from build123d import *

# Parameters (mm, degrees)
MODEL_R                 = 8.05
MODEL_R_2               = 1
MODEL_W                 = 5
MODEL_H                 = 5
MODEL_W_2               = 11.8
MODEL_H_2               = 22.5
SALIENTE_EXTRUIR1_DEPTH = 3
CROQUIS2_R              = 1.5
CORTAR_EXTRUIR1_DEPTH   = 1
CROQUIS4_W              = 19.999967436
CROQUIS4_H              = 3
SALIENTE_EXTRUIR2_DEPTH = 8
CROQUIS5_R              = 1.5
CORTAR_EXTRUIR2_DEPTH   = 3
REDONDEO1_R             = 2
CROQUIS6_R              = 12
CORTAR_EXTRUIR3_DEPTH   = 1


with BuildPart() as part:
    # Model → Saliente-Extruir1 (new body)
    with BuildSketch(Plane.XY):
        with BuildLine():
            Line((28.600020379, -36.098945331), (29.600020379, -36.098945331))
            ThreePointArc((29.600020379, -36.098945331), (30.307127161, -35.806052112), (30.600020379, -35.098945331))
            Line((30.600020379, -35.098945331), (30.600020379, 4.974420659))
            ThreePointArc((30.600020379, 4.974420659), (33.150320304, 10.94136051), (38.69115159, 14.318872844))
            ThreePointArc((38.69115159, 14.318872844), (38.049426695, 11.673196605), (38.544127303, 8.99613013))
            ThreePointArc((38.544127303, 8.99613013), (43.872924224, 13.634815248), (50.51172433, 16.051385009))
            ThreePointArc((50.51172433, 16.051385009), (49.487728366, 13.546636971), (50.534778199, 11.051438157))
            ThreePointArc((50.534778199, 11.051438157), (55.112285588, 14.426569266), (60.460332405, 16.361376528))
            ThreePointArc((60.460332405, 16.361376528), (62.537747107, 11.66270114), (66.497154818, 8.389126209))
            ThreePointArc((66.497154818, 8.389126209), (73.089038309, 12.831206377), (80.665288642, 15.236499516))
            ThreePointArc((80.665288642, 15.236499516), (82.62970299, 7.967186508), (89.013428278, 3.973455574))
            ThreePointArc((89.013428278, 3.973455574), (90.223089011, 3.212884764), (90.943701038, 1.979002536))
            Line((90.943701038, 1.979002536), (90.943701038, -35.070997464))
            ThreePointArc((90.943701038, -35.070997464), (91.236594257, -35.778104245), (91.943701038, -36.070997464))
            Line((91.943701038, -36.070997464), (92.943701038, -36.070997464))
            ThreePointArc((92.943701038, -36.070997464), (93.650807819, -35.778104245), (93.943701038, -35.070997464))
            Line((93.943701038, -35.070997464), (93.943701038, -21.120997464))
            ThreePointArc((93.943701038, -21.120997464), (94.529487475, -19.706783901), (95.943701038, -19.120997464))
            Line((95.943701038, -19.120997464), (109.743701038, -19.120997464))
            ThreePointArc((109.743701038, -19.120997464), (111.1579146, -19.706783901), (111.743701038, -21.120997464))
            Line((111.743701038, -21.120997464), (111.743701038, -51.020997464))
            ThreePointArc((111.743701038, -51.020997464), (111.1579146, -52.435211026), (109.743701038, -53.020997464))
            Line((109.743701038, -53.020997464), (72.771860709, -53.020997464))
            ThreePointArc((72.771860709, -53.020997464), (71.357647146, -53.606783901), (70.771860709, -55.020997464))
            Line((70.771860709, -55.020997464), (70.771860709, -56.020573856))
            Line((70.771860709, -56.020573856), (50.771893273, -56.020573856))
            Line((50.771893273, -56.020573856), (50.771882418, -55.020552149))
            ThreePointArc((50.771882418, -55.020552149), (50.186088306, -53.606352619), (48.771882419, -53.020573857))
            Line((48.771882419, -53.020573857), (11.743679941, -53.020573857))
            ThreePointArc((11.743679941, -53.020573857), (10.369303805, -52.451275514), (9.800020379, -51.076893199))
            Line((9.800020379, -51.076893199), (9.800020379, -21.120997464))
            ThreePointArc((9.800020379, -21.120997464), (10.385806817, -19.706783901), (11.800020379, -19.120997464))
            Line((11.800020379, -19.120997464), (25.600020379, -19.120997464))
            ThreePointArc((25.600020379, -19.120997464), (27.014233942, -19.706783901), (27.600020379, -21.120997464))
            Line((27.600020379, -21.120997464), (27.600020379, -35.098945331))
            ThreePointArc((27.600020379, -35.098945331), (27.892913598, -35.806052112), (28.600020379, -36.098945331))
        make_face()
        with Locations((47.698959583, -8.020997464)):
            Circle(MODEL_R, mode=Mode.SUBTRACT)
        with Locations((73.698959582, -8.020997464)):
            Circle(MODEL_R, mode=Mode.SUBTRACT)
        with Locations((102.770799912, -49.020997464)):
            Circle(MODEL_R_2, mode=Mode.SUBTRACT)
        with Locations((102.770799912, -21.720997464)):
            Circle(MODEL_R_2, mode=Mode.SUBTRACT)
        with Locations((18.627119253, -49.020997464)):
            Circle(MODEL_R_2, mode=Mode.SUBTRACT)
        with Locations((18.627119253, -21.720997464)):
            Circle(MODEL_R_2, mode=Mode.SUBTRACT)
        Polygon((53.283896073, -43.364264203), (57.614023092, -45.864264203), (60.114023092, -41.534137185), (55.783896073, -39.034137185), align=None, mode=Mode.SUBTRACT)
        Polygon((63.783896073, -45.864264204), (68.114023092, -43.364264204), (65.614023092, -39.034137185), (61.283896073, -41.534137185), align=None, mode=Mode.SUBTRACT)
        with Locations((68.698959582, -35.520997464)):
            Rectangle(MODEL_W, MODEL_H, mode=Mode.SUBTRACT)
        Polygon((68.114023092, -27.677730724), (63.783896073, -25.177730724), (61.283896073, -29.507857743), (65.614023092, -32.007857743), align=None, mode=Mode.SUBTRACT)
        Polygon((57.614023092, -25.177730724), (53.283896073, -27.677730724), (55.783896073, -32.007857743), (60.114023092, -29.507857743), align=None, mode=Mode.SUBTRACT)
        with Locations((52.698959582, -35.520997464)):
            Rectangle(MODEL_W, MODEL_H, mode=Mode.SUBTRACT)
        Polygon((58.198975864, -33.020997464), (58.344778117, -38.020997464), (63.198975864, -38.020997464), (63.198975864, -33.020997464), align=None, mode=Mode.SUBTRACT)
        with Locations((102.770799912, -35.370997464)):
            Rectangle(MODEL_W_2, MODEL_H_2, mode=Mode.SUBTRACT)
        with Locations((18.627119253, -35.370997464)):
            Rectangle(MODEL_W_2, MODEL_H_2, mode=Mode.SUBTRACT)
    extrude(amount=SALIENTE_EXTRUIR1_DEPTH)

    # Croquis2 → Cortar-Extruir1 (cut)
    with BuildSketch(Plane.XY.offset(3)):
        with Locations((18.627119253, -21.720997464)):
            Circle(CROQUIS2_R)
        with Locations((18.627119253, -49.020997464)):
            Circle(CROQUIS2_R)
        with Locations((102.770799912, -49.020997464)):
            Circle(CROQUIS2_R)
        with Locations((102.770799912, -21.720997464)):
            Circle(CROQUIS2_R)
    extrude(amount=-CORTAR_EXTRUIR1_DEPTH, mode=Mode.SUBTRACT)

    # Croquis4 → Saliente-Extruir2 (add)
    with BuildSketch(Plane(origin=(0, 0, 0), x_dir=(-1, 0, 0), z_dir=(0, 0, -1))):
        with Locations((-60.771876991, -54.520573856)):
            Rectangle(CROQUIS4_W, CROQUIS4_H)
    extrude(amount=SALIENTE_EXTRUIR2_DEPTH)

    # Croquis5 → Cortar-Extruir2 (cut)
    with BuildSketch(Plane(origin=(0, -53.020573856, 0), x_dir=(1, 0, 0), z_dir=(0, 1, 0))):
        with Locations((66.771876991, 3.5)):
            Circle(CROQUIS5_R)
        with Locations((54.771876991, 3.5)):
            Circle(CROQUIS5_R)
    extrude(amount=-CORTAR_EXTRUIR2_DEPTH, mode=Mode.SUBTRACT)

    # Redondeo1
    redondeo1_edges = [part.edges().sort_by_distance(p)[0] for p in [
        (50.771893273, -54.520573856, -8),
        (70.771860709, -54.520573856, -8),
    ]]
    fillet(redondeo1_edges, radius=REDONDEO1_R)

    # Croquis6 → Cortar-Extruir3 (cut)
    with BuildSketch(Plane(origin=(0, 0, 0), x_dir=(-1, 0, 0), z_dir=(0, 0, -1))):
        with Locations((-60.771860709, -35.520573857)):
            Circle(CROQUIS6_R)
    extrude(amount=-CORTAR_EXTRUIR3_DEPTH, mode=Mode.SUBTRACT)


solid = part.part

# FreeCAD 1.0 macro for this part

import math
import FreeCAD as App
import Part
import Sketcher

V = App.Vector
Q = App.Units.Quantity


def edges_at(feature, points):
    """Names of the edges that pass closest to the given points."""
    edges = feature.Shape.Edges
    near = lambda p: min(range(len(edges)), key=lambda i: edges[i].distToShape(Part.Vertex(*p))[0])
    return sorted({f"Edge{near(p) + 1}" for p in points})


def add_polygon(sketch, points):
    """Adds a closed chain of lines whose ends are joined by coincident constraints."""
    first, n = sketch.GeometryCount, len(points)
    for a, b in zip(points, points[1:] + points[:1]):
        sketch.addGeometry(Part.LineSegment(App.Vector(*a, 0), App.Vector(*b, 0)), False)
    for i in range(n):
        sketch.addConstraint(Sketcher.Constraint("Coincident", first + i, 2, first + (i + 1) % n, 1))

doc = App.newDocument("Part")
body = doc.addObject("PartDesign::Body", "Body")

# Sketch on XY plane
sketch1 = body.newObject("Sketcher::SketchObject", "Sketch")
sketch1.AttachmentSupport = (doc.getObject("XY_Plane"), [""])
sketch1.MapMode = "FlatFace"
sketch1.addGeometry(Part.LineSegment(V(29.60002, -36.098945, 0), V(28.60002, -36.098945, 0)), False)  # 0
sketch1.addGeometry(Part.ArcOfCircle(Part.Circle(V(28.60002, -35.098945, 0), V(0, 0, 1), 1), math.radians(-180), math.radians(-90)), False)  # 1
sketch1.addGeometry(Part.LineSegment(V(27.60002, -35.098945, 0), V(27.60002, -21.120997, 0)), False)  # 2
sketch1.addGeometry(Part.ArcOfCircle(Part.Circle(V(25.60002, -21.120997, 0), V(0, 0, 1), 2), math.radians(0), math.radians(90)), False)  # 3
sketch1.addGeometry(Part.LineSegment(V(25.60002, -19.120997, 0), V(11.80002, -19.120997, 0)), False)  # 4
sketch1.addGeometry(Part.ArcOfCircle(Part.Circle(V(11.80002, -21.120997, 0), V(0, 0, 1), 2), math.radians(90), math.radians(180)), False)  # 5
sketch1.addGeometry(Part.LineSegment(V(9.80002, -21.120997, 0), V(9.80002, -51.076893, 0)), False)  # 6
sketch1.addGeometry(Part.ArcOfCircle(Part.Circle(V(11.743701, -51.076893, 0), V(0, 0, 1), 1.943681), math.radians(-180), math.radians(-90.000622)), False)  # 7
sketch1.addGeometry(Part.LineSegment(V(11.74368, -53.020574, 0), V(48.771882, -53.020574, 0)), False)  # 8
sketch1.addGeometry(Part.ArcOfCircle(Part.Circle(V(48.771882, -55.020574, 0), V(0, 0, 1), 2), math.radians(0.000622), math.radians(90)), False)  # 9
sketch1.addGeometry(Part.LineSegment(V(50.771882, -55.020552, 0), V(50.771893, -56.020574, 0)), False)  # 10
sketch1.addGeometry(Part.LineSegment(V(50.771893, -56.020574, 0), V(70.771861, -56.020574, 0)), False)  # 11
sketch1.addGeometry(Part.LineSegment(V(70.771861, -56.020574, 0), V(70.771861, -55.020997, 0)), False)  # 12
sketch1.addGeometry(Part.ArcOfCircle(Part.Circle(V(72.771861, -55.020997, 0), V(0, 0, 1), 2), math.radians(90), math.radians(180)), False)  # 13
sketch1.addGeometry(Part.LineSegment(V(72.771861, -53.020997, 0), V(109.743701, -53.020997, 0)), False)  # 14
sketch1.addGeometry(Part.ArcOfCircle(Part.Circle(V(109.743701, -51.020997, 0), V(0, 0, 1), 2), math.radians(-90), math.radians(0)), False)  # 15
sketch1.addGeometry(Part.LineSegment(V(111.743701, -51.020997, 0), V(111.743701, -21.120997, 0)), False)  # 16
sketch1.addGeometry(Part.ArcOfCircle(Part.Circle(V(109.743701, -21.120997, 0), V(0, 0, 1), 2), math.radians(0), math.radians(90)), False)  # 17
sketch1.addGeometry(Part.LineSegment(V(109.743701, -19.120997, 0), V(95.943701, -19.120997, 0)), False)  # 18
sketch1.addGeometry(Part.ArcOfCircle(Part.Circle(V(95.943701, -21.120997, 0), V(0, 0, 1), 2), math.radians(90), math.radians(180)), False)  # 19
sketch1.addGeometry(Part.LineSegment(V(93.943701, -21.120997, 0), V(93.943701, -35.070997, 0)), False)  # 20
sketch1.addGeometry(Part.ArcOfCircle(Part.Circle(V(92.943701, -35.070997, 0), V(0, 0, 1), 1), math.radians(-90), math.radians(0)), False)  # 21
sketch1.addGeometry(Part.LineSegment(V(92.943701, -36.070997, 0), V(91.943701, -36.070997, 0)), False)  # 22
sketch1.addGeometry(Part.ArcOfCircle(Part.Circle(V(91.943701, -35.070997, 0), V(0, 0, 1), 1), math.radians(-180), math.radians(-90)), False)  # 23
sketch1.addGeometry(Part.LineSegment(V(90.943701, -35.070997, 0), V(90.943701, 1.979003, 0)), False)  # 24
sketch1.addGeometry(Part.ArcOfCircle(Part.Circle(V(88.067367, 1.126533, 0), V(0, 0, 1), 3), math.radians(16.508438), math.radians(71.617836)), False)  # 25
sketch1.addGeometry(Part.ArcOfCircle(Part.Circle(V(90.910772, 14.105094, 0), V(0, 0, 1), 10.307764), math.radians(173.698375), math.radians(259.393122)), False)  # 26
sketch1.addGeometry(Part.ArcOfCircle(Part.Circle(V(85.242917, -12.316798, 0), V(0, 0, 1), 27.930966), math.radians(99.432804), math.radians(132.15559)), False)  # 27
sketch1.addGeometry(Part.ArcOfCircle(Part.Circle(V(71.450994, 18.412074, 0), V(0, 0, 1), 11.18034), math.radians(-169.430975), math.radians(-116.300872)), False)  # 28
sketch1.addGeometry(Part.ArcOfCircle(Part.Circle(V(64.452877, -3.033247, 0), V(0, 0, 1), 19.801309), math.radians(101.632314), math.radians(134.659156)), False)  # 29
sketch1.addGeometry(Part.ArcOfCircle(Part.Circle(V(53.023225, 13.562939, 0), V(0, 0, 1), 3.535534), math.radians(135.264179), math.radians(225.264179)), False)  # 30
sketch1.addGeometry(Part.ArcOfCircle(Part.Circle(V(53.699757, -3.034119, 0), V(0, 0, 1), 19.349935), math.radians(99.483105), math.radians(141.558127)), False)  # 31
sketch1.addGeometry(Part.ArcOfCircle(Part.Circle(V(44.566144, 11.493192, 0), V(0, 0, 1), 6.519202), math.radians(154.313956), math.radians(202.521611)), False)  # 32
sketch1.addGeometry(Part.ArcOfCircle(Part.Circle(V(41.197558, 3.973456, 0), V(0, 0, 1), 10.644704), math.radians(103.618763), math.radians(174.604272)), False)  # 33
sketch1.addGeometry(Part.LineSegment(V(30.60002, 4.974421, 0), V(30.60002, -35.098945, 0)), False)  # 34
sketch1.addGeometry(Part.ArcOfCircle(Part.Circle(V(29.60002, -35.098945, 0), V(0, 0, 1), 1), math.radians(-90), math.radians(0)), False)  # 35
sketch1.addGeometry(Part.Circle(V(102.7708, -49.020997, 0), V(0, 0, 1), 1), False)  # 36
add_polygon(sketch1, [(63.783896, -45.864264), (61.283896, -41.534137), (65.614023, -39.034137), (68.114023, -43.364264)])  # lines 37-40
add_polygon(sketch1, [(96.8708, -46.620997), (96.8708, -24.120997), (108.6708, -24.120997), (108.6708, -46.620997)])  # lines 41-44
add_polygon(sketch1, [(66.19896, -38.020997), (66.19896, -33.020997), (71.19896, -33.020997), (71.19896, -38.020997)])  # lines 45-48
add_polygon(sketch1, [(58.198976, -33.020997), (63.198976, -33.020997), (63.198976, -38.020997), (58.344778, -38.020997)])  # lines 49-52
add_polygon(sketch1, [(68.114023, -27.677731), (65.614023, -32.007858), (61.283896, -29.507858), (63.783896, -25.177731)])  # lines 53-56
add_polygon(sketch1, [(53.283896, -43.364264), (55.783896, -39.034137), (60.114023, -41.534137), (57.614023, -45.864264)])  # lines 57-60
sketch1.addGeometry(Part.Circle(V(18.627119, -49.020997, 0), V(0, 0, 1), 1), False)  # 61
add_polygon(sketch1, [(50.19896, -38.020997), (50.19896, -33.020997), (55.19896, -33.020997), (55.19896, -38.020997)])  # lines 62-65
add_polygon(sketch1, [(57.614023, -25.177731), (60.114023, -29.507858), (55.783896, -32.007858), (53.283896, -27.677731)])  # lines 66-69
add_polygon(sketch1, [(12.727119, -46.620997), (12.727119, -24.120997), (24.527119, -24.120997), (24.527119, -46.620997)])  # lines 70-73
sketch1.addGeometry(Part.Circle(V(102.7708, -21.720997, 0), V(0, 0, 1), 1), False)  # 74
sketch1.addGeometry(Part.Circle(V(73.69896, -8.020997, 0), V(0, 0, 1), 8.05), False)  # 75
sketch1.addGeometry(Part.Circle(V(18.627119, -21.720997, 0), V(0, 0, 1), 1), False)  # 76
sketch1.addGeometry(Part.Circle(V(47.69896, -8.020997, 0), V(0, 0, 1), 8.05), False)  # 77
sketch1.addConstraint([
    Sketcher.Constraint("Tangent", 0, 2, 1, 2),
    Sketcher.Constraint("Tangent", 1, 1, 2, 1),
    Sketcher.Constraint("Tangent", 2, 2, 3, 1),
    Sketcher.Constraint("Tangent", 3, 2, 4, 1),
    Sketcher.Constraint("Tangent", 4, 2, 5, 1),
    Sketcher.Constraint("Tangent", 5, 2, 6, 1),
    Sketcher.Constraint("Tangent", 6, 2, 7, 1),
    Sketcher.Constraint("Coincident", 7, 2, 8, 1),
    Sketcher.Constraint("Tangent", 8, 2, 9, 2),
    Sketcher.Constraint("Tangent", 9, 1, 10, 1),
    Sketcher.Constraint("Coincident", 10, 2, 11, 1),
    Sketcher.Constraint("Coincident", 11, 2, 12, 1),
    Sketcher.Constraint("Tangent", 12, 2, 13, 2),
    Sketcher.Constraint("Tangent", 13, 1, 14, 1),
    Sketcher.Constraint("Tangent", 14, 2, 15, 1),
    Sketcher.Constraint("Tangent", 15, 2, 16, 1),
    Sketcher.Constraint("Tangent", 16, 2, 17, 1),
    Sketcher.Constraint("Tangent", 17, 2, 18, 1),
    Sketcher.Constraint("Tangent", 18, 2, 19, 1),
    Sketcher.Constraint("Tangent", 19, 2, 20, 1),
    Sketcher.Constraint("Tangent", 20, 2, 21, 2),
    Sketcher.Constraint("Tangent", 21, 1, 22, 1),
    Sketcher.Constraint("Tangent", 22, 2, 23, 2),
    Sketcher.Constraint("Tangent", 23, 1, 24, 1),
    Sketcher.Constraint("Coincident", 24, 2, 25, 1),
    Sketcher.Constraint("Coincident", 25, 2, 26, 2),
    Sketcher.Constraint("Coincident", 26, 1, 27, 1),
    Sketcher.Constraint("Coincident", 27, 2, 28, 2),
    Sketcher.Constraint("Coincident", 28, 1, 29, 1),
    Sketcher.Constraint("Coincident", 29, 2, 30, 2),
    Sketcher.Constraint("Coincident", 30, 1, 31, 1),
    Sketcher.Constraint("Coincident", 31, 2, 32, 2),
    Sketcher.Constraint("Coincident", 32, 1, 33, 1),
    Sketcher.Constraint("Coincident", 33, 2, 34, 1),
    Sketcher.Constraint("Tangent", 34, 2, 35, 2),
    Sketcher.Constraint("Tangent", 35, 1, 0, 1),
    Sketcher.Constraint("Horizontal", 0),
    Sketcher.Constraint("Vertical", 2),
    Sketcher.Constraint("Horizontal", 4),
    Sketcher.Constraint("Vertical", 6),
    Sketcher.Constraint("Horizontal", 8),
    Sketcher.Constraint("Horizontal", 11),
    Sketcher.Constraint("Vertical", 12),
    Sketcher.Constraint("Horizontal", 14),
    Sketcher.Constraint("Vertical", 16),
    Sketcher.Constraint("Horizontal", 18),
    Sketcher.Constraint("Vertical", 20),
    Sketcher.Constraint("Horizontal", 22),
    Sketcher.Constraint("Vertical", 24),
    Sketcher.Constraint("Vertical", 34),
    Sketcher.Constraint("Vertical", 41),
    Sketcher.Constraint("Horizontal", 42),
    Sketcher.Constraint("Vertical", 43),
    Sketcher.Constraint("Horizontal", 44),
    Sketcher.Constraint("Vertical", 45),
    Sketcher.Constraint("Horizontal", 46),
    Sketcher.Constraint("Vertical", 47),
    Sketcher.Constraint("Horizontal", 48),
    Sketcher.Constraint("Horizontal", 49),
    Sketcher.Constraint("Vertical", 50),
    Sketcher.Constraint("Horizontal", 51),
    Sketcher.Constraint("Vertical", 62),
    Sketcher.Constraint("Horizontal", 63),
    Sketcher.Constraint("Vertical", 64),
    Sketcher.Constraint("Horizontal", 65),
    Sketcher.Constraint("Vertical", 70),
    Sketcher.Constraint("Horizontal", 71),
    Sketcher.Constraint("Vertical", 72),
    Sketcher.Constraint("Horizontal", 73),
    Sketcher.Constraint("Equal", 3, 5),
    Sketcher.Constraint("Equal", 5, 9),
    Sketcher.Constraint("Equal", 9, 13),
    Sketcher.Constraint("Equal", 13, 15),
    Sketcher.Constraint("Equal", 15, 17),
    Sketcher.Constraint("Equal", 17, 19),
    Sketcher.Constraint("Equal", 1, 21),
    Sketcher.Constraint("Equal", 21, 23),
    Sketcher.Constraint("Equal", 23, 35),
    Sketcher.Constraint("Equal", 35, 36),
    Sketcher.Constraint("Equal", 36, 61),
    Sketcher.Constraint("Equal", 61, 74),
    Sketcher.Constraint("Equal", 74, 76),
    Sketcher.Constraint("Equal", 75, 77),
    Sketcher.Constraint("Perpendicular", 37, 38),
    Sketcher.Constraint("Perpendicular", 38, 39),
    Sketcher.Constraint("Perpendicular", 39, 40),
    Sketcher.Constraint("Perpendicular", 53, 54),
    Sketcher.Constraint("Perpendicular", 54, 55),
    Sketcher.Constraint("Perpendicular", 55, 56),
    Sketcher.Constraint("Perpendicular", 56, 57),
    Sketcher.Constraint("Perpendicular", 57, 58),
    Sketcher.Constraint("Perpendicular", 58, 59),
    Sketcher.Constraint("Perpendicular", 59, 60),
    Sketcher.Constraint("Perpendicular", 40, 66),
    Sketcher.Constraint("Perpendicular", 66, 67),
    Sketcher.Constraint("Perpendicular", 67, 68),
    Sketcher.Constraint("Perpendicular", 68, 69),
    Sketcher.Constraint("Horizontal", 5, 3, 17, 3),
    Sketcher.Constraint("Horizontal", 36, 3, 61, 3),
    Sketcher.Constraint("Horizontal", 74, 3, 76, 3),
    Sketcher.Constraint("Horizontal", 75, 3, 77, 3),
    Sketcher.Constraint("Horizontal", 33, 3, 25, 2),
    Sketcher.Constraint("Horizontal", 46, 2, 49, 2),
    Sketcher.Constraint("Horizontal", 48, 2, 50, 2),
    Sketcher.Constraint("Horizontal", 38, 2, 57, 2),
    Sketcher.Constraint("Horizontal", 37, 2, 58, 2),
    Sketcher.Constraint("Horizontal", 40, 2, 59, 2),
    Sketcher.Constraint("Horizontal", 52, 2, 62, 2),
    Sketcher.Constraint("Horizontal", 51, 2, 64, 2),
    Sketcher.Constraint("Horizontal", 54, 2, 66, 2),
    Sketcher.Constraint("Horizontal", 53, 2, 67, 2),
    Sketcher.Constraint("Horizontal", 56, 2, 68, 2),
    Sketcher.Constraint("Horizontal", 42, 2, 70, 2),
    Sketcher.Constraint("Horizontal", 44, 2, 72, 2),
    Sketcher.Constraint("Vertical", 36, 3, 74, 3),
    Sketcher.Constraint("Vertical", 61, 3, 76, 3),
    Sketcher.Constraint("Vertical", 38, 2, 53, 2),
    Sketcher.Constraint("Vertical", 37, 2, 54, 2),
    Sketcher.Constraint("Vertical", 40, 2, 55, 2),
    Sketcher.Constraint("Vertical", 58, 2, 66, 2),
    Sketcher.Constraint("Vertical", 57, 2, 67, 2),
    Sketcher.Constraint("Equal", 4, 18),
    Sketcher.Constraint("Equal", 0, 22),
    Sketcher.Constraint("Equal", 48, 49),
    Sketcher.Constraint("Equal", 49, 63),
    Sketcher.Constraint("Equal", 44, 71),
    Sketcher.Constraint("Equal", 65, 45),
    Sketcher.Constraint("Equal", 37, 38),
    Sketcher.Constraint("Diameter", 36, Q("2 mm")),
    Sketcher.Constraint("Radius", 3, Q("2 mm")),
    Sketcher.Constraint("Radius", 25, Q("3 mm")),
    Sketcher.Constraint("Diameter", 75, Q("16.1 mm")),
    Sketcher.Constraint("DistanceX", 0, 2, 0, 1, Q("1 mm")),
    Sketcher.Constraint("DistanceX", 46, 1, 46, 2, Q("5 mm")),
    Sketcher.Constraint("Angle", 37, Q("120 deg")),
    Sketcher.Constraint("Distance", 37, Q("5 mm")),
    Sketcher.Constraint("DistanceX", 4, 2, 4, 1, Q("13.8 mm")),
    Sketcher.Constraint("DistanceX", 42, 1, 42, 2, Q("11.8 mm")),
    Sketcher.Constraint("DistanceY", 16, 1, 16, 2, Q("29.9 mm")),
    Sketcher.Constraint("DistanceY", 41, 1, 41, 2, Q("22.5 mm")),
    Sketcher.Constraint("DistanceY", 20, 2, 20, 1, Q("13.95 mm")),
    Sketcher.Constraint("DistanceY", 24, 1, 24, 2, Q("37.05 mm")),
    Sketcher.Constraint("Radius", 7, Q("1.943681 mm")),
    Sketcher.Constraint("Radius", 28, Q("11.18034 mm")),
    Sketcher.Constraint("Radius", 29, Q("19.801309 mm")),
    Sketcher.Constraint("Radius", 26, Q("10.307764 mm")),
    Sketcher.Constraint("Radius", 27, Q("27.930966 mm")),
    Sketcher.Constraint("Radius", 30, Q("3.535534 mm")),
    Sketcher.Constraint("Radius", 31, Q("19.349935 mm")),
    Sketcher.Constraint("Radius", 32, Q("6.519202 mm")),
    Sketcher.Constraint("Radius", 33, Q("10.644704 mm")),
    Sketcher.Constraint("DistanceX", 14, 1, 14, 2, Q("36.97184 mm")),
    Sketcher.Constraint("DistanceX", -1, 1, 7, 3, Q("11.743701 mm")),
    Sketcher.Constraint("DistanceX", -1, 1, 15, 3, Q("109.743701 mm")),
    Sketcher.Constraint("DistanceY", 27, 3, -1, 1, Q("12.316798 mm")),
    Sketcher.Constraint("DistanceX", -1, 1, 36, 3, Q("102.7708 mm")),
    Sketcher.Constraint("DistanceY", -1, 1, 26, 1, Q("15.2365 mm")),
    Sketcher.Constraint("DistanceX", -1, 1, 41, 2, Q("96.8708 mm")),
    Sketcher.Constraint("Distance", 10, Q("1.000022 mm")),
    Sketcher.Constraint("DistanceX", 8, 1, 8, 2, Q("37.028202 mm")),
    Sketcher.Constraint("DistanceX", 11, 1, 11, 2, Q("19.999967 mm")),
    Sketcher.Constraint("DistanceX", 51, 2, 51, 1, Q("4.854198 mm")),
    Sketcher.Constraint("DistanceY", 2, 1, 2, 2, Q("13.977948 mm")),
    Sketcher.Constraint("DistanceY", 6, 2, 6, 1, Q("29.955896 mm")),
    Sketcher.Constraint("DistanceY", 12, 1, 12, 2, Q("0.999576 mm")),
    Sketcher.Constraint("DistanceY", 34, 2, 34, 1, Q("40.073366 mm")),
    Sketcher.Constraint("DistanceX", -1, 1, 26, 3, Q("90.910772 mm")),
    Sketcher.Constraint("DistanceY", -1, 1, 30, 3, Q("13.562939 mm")),
    Sketcher.Constraint("DistanceY", 31, 3, -1, 1, Q("3.034119 mm")),
    Sketcher.Constraint("DistanceX", -1, 1, 61, 3, Q("18.627119 mm")),
    Sketcher.Constraint("DistanceX", -1, 1, 75, 3, Q("73.69896 mm")),
    Sketcher.Constraint("DistanceX", -1, 1, 77, 3, Q("47.69896 mm")),
    Sketcher.Constraint("DistanceX", -1, 1, 25, 2, Q("89.013428 mm")),
    Sketcher.Constraint("DistanceX", -1, 1, 26, 1, Q("80.665289 mm")),
    Sketcher.Constraint("DistanceX", -1, 1, 29, 2, Q("50.534778 mm")),
    Sketcher.Constraint("DistanceY", -1, 1, 29, 2, Q("11.051438 mm")),
    Sketcher.Constraint("DistanceY", -1, 1, 31, 2, Q("8.99613 mm")),
    Sketcher.Constraint("DistanceX", -1, 1, 32, 1, Q("38.691152 mm")),
    Sketcher.Constraint("DistanceY", -1, 1, 33, 2, Q("4.974421 mm")),
    Sketcher.Constraint("DistanceX", -1, 1, 45, 2, Q("66.19896 mm")),
    Sketcher.Constraint("DistanceX", -1, 1, 51, 2, Q("58.344778 mm")),
    Sketcher.Constraint("DistanceY", 55, 2, -1, 1, Q("25.177731 mm")),
    Sketcher.Constraint("DistanceX", -1, 1, 62, 2, Q("50.19896 mm")),
    Sketcher.Constraint("DistanceX", -1, 1, 70, 2, Q("12.727119 mm")),
    Sketcher.Constraint("DistanceX", -1, 1, 28, 3, Q("71.450994 mm")),
    Sketcher.Constraint("DistanceY", -1, 1, 28, 3, Q("18.412074 mm")),
    Sketcher.Constraint("DistanceX", -1, 1, 29, 3, Q("64.452877 mm")),
    Sketcher.Constraint("DistanceX", -1, 1, 31, 3, Q("53.699757 mm")),
    Sketcher.Constraint("DistanceY", 36, 3, -1, 1, Q("49.020997 mm")),
    Sketcher.Constraint("DistanceY", 74, 3, -1, 1, Q("21.720997 mm")),
    Sketcher.Constraint("DistanceY", 75, 3, -1, 1, Q("8.020997 mm")),
    Sketcher.Constraint("DistanceX", -1, 1, 37, 2, Q("61.283896 mm")),
    Sketcher.Constraint("DistanceY", 37, 2, -1, 1, Q("41.534137 mm")),
    Sketcher.Constraint("DistanceY", 41, 2, -1, 1, Q("24.120997 mm")),
    Sketcher.Constraint("DistanceY", 45, 2, -1, 1, Q("33.020997 mm")),
    Sketcher.Constraint("DistanceX", -1, 1, 57, 2, Q("55.783896 mm")),
])
pad1 = body.newObject("PartDesign::Pad", "Pad")
pad1.Profile = sketch1
pad1.Length = 3

# Sketch on XY plane
sketch2 = body.newObject("Sketcher::SketchObject", "Sketch001")
sketch2.AttachmentSupport = (doc.getObject("XY_Plane"), [""])
sketch2.MapMode = "FlatFace"
sketch2.AttachmentOffset = App.Placement(V(0, 0, 3), App.Rotation())
sketch2.addGeometry([
    Part.Circle(V(18.627119, -21.720997, 0), V(0, 0, 1), 1.5),
    Part.Circle(V(18.627119, -49.020997, 0), V(0, 0, 1), 1.5),
    Part.Circle(V(102.7708, -49.020997, 0), V(0, 0, 1), 1.5),
    Part.Circle(V(102.7708, -21.720997, 0), V(0, 0, 1), 1.5),
], False)
sketch2.addConstraint([
    Sketcher.Constraint("Equal", 0, 1),
    Sketcher.Constraint("Equal", 1, 2),
    Sketcher.Constraint("Equal", 2, 3),
    Sketcher.Constraint("Horizontal", 1, 3, 2, 3),
    Sketcher.Constraint("Horizontal", 0, 3, 3, 3),
    Sketcher.Constraint("Vertical", 0, 3, 1, 3),
    Sketcher.Constraint("Vertical", 2, 3, 3, 3),
    Sketcher.Constraint("Diameter", 0, Q("3 mm")),
    Sketcher.Constraint("DistanceY", 1, 3, 0, 3, Q("27.3 mm")),
    Sketcher.Constraint("DistanceX", -1, 1, 2, 3, Q("102.7708 mm")),
    Sketcher.Constraint("DistanceX", -1, 1, 0, 3, Q("18.627119 mm")),
    Sketcher.Constraint("DistanceY", 0, 3, -1, 1, Q("21.720997 mm")),
])
pocket1 = body.newObject("PartDesign::Pocket", "Pocket")
pocket1.Profile = sketch2
pocket1.Length = 1

# Sketch on XY plane
sketch3 = body.newObject("Sketcher::SketchObject", "Sketch002")
sketch3.AttachmentSupport = (doc.getObject("XY_Plane"), [""])
sketch3.MapMode = "FlatFace"
add_polygon(sketch3, [(70.771861, -53.020574), (70.771861, -56.020574), (50.771893, -56.020574), (50.771893, -53.020574)])  # lines 0-3
sketch3.addConstraint([
    Sketcher.Constraint("Vertical", 0),
    Sketcher.Constraint("Horizontal", 1),
    Sketcher.Constraint("Vertical", 2),
    Sketcher.Constraint("Horizontal", 3),
    Sketcher.Constraint("DistanceY", 0, 2, 0, 1, Q("3 mm")),
    Sketcher.Constraint("DistanceX", 1, 2, 1, 1, Q("19.999967 mm")),
    Sketcher.Constraint("DistanceX", -1, 1, 0, 2, Q("70.771861 mm")),
    Sketcher.Constraint("DistanceY", 0, 2, -1, 1, Q("56.020574 mm")),
])
pad2 = body.newObject("PartDesign::Pad", "Pad001")
pad2.Profile = sketch3
pad2.Length = 8
pad2.Reversed = True

# Sketch on XZ plane
sketch4 = body.newObject("Sketcher::SketchObject", "Sketch003")
sketch4.AttachmentSupport = (doc.getObject("XZ_Plane"), [""])
sketch4.MapMode = "FlatFace"
sketch4.AttachmentOffset = App.Placement(V(0, 0, 53.020574), App.Rotation())
sketch4.addGeometry([
    Part.Circle(V(66.771877, -3.5, 0), V(0, 0, 1), 1.5),
    Part.Circle(V(54.771877, -3.5, 0), V(0, 0, 1), 1.5),
], False)
sketch4.addConstraint([
    Sketcher.Constraint("Equal", 0, 1),
    Sketcher.Constraint("Horizontal", 0, 3, 1, 3),
    Sketcher.Constraint("Diameter", 0, Q("3 mm")),
    Sketcher.Constraint("DistanceX", 1, 3, 0, 3, Q("12 mm")),
    Sketcher.Constraint("DistanceY", 0, 3, -1, 1, Q("3.5 mm")),
    Sketcher.Constraint("DistanceX", -1, 1, 0, 3, Q("66.771877 mm")),
])
pocket2 = body.newObject("PartDesign::Pocket", "Pocket001")
pocket2.Profile = sketch4
pocket2.Length = 3
pocket2.Reversed = True
doc.recompute()

fillet = body.newObject("PartDesign::Fillet", "Fillet")
fillet.Base = (pocket2, edges_at(pocket2, [(50.772, -54.521, -8), (70.772, -54.521, -8)]))
fillet.Radius = 2

# Sketch on XY plane
sketch5 = body.newObject("Sketcher::SketchObject", "Sketch004")
sketch5.AttachmentSupport = (doc.getObject("XY_Plane"), [""])
sketch5.MapMode = "FlatFace"
sketch5.addGeometry(Part.Circle(V(60.771861, -35.520574, 0), V(0, 0, 1), 12), False)
sketch5.addConstraint([
    Sketcher.Constraint("Diameter", 0, Q("24 mm")),
    Sketcher.Constraint("DistanceX", -1, 1, 0, 3, Q("60.771861 mm")),
    Sketcher.Constraint("DistanceY", 0, 3, -1, 1, Q("35.520574 mm")),
])
pocket3 = body.newObject("PartDesign::Pocket", "Pocket002")
pocket3.Profile = sketch5
pocket3.Length = 1
pocket3.Reversed = True

doc.recompute()
